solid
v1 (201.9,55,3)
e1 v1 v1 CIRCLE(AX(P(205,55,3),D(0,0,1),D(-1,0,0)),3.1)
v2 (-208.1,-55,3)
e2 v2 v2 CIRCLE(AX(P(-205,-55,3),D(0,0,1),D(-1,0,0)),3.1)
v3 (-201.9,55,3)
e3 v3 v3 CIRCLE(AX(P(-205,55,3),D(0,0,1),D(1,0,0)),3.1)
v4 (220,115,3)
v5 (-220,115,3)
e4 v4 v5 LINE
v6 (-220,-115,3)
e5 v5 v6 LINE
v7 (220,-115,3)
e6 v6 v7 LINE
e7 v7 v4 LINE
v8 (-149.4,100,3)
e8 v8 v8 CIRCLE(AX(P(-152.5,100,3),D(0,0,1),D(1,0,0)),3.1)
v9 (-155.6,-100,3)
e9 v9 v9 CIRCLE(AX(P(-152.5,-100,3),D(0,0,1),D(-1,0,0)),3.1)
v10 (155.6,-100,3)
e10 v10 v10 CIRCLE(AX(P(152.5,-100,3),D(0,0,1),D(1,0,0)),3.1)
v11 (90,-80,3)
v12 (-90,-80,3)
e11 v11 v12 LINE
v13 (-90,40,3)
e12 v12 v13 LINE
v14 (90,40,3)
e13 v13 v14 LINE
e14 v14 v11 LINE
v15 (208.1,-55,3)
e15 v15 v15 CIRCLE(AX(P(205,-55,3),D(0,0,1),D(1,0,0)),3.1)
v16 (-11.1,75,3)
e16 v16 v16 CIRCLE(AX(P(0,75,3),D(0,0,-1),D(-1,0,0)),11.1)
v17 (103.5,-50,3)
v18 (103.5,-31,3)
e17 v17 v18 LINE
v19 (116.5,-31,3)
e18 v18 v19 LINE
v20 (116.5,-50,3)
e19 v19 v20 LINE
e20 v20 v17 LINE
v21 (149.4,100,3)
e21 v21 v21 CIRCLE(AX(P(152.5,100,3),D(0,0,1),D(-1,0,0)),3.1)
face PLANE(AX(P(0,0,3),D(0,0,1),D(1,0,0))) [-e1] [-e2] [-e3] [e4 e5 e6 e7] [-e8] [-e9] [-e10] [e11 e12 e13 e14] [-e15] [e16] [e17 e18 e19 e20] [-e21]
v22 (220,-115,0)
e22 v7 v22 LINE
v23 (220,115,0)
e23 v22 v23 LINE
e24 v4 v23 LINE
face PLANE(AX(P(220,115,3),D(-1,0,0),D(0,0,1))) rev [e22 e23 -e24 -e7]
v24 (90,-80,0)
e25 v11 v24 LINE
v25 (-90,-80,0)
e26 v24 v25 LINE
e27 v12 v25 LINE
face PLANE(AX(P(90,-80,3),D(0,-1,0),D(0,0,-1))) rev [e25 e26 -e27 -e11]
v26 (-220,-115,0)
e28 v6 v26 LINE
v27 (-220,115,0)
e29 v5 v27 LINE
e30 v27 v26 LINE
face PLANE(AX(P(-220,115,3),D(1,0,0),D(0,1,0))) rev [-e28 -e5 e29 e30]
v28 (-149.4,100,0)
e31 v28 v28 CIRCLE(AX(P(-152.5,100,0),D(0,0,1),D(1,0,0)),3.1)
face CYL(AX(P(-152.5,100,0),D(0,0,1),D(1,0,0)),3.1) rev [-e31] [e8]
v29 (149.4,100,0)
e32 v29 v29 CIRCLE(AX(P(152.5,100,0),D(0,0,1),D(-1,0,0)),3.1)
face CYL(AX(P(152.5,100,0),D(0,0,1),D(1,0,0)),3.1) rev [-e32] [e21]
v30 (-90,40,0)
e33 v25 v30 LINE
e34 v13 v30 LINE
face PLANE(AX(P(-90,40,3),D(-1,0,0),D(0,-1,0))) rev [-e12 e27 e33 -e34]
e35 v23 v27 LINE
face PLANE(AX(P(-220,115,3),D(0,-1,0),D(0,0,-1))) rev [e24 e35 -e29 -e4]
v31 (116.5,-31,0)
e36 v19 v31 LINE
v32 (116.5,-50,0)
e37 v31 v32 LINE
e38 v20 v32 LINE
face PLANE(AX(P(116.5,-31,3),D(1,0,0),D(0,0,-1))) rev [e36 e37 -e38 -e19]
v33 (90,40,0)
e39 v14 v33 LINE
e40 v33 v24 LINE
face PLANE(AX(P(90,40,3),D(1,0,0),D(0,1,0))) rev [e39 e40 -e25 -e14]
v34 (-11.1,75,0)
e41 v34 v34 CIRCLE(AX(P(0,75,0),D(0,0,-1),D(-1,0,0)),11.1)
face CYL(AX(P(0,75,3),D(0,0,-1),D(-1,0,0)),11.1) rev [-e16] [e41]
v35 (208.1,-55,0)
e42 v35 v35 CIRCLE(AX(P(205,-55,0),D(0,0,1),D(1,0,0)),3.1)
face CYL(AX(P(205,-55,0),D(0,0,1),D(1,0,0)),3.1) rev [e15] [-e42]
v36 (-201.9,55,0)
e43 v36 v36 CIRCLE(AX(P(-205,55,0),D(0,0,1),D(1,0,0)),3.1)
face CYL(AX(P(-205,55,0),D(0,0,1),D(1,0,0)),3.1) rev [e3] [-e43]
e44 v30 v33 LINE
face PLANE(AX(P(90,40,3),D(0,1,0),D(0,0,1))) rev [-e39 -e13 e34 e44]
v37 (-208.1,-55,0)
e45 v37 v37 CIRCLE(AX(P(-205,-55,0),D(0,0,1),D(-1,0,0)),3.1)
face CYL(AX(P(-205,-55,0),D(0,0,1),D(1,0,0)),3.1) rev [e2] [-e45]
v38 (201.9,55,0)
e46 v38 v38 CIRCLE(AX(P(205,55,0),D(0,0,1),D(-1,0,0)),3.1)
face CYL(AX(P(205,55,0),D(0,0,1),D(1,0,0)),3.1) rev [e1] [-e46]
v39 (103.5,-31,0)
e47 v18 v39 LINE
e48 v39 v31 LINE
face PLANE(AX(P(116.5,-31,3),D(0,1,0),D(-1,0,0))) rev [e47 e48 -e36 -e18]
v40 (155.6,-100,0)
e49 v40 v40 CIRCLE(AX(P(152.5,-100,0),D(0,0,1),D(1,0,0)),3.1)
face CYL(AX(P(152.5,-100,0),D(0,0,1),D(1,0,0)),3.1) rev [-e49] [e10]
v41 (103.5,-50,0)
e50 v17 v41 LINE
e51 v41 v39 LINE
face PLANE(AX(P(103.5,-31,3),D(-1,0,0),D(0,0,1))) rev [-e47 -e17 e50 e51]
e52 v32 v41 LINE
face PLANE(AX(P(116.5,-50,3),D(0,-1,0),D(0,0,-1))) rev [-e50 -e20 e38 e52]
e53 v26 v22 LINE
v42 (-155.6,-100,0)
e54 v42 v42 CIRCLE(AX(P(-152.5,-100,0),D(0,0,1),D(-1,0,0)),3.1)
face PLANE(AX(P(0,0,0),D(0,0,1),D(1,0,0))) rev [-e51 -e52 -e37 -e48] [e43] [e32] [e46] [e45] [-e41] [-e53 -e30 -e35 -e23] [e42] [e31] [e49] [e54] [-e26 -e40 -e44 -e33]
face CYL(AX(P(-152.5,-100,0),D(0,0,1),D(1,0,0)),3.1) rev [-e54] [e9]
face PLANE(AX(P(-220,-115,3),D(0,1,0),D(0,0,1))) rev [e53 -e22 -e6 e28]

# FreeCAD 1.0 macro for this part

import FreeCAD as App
import Part
import Sketcher
Q = App.Units.Quantity

doc = App.newDocument("Part")
body = doc.addObject("PartDesign::Body", "Body")

sketch1 = doc.addObject("Sketcher::SketchObject", "Sketch")
body.addObject(sketch1)
sketch1.AttachmentSupport = (doc.XY_Plane, [""])
sketch1.MapMode = "FlatFace"
sketch1.addGeometry(Part.LineSegment(App.Vector(-220, 115, 0), App.Vector(-220, -115, 0)), False)
sketch1.addGeometry(Part.LineSegment(App.Vector(-220, -115, 0), App.Vector(220, -115, 0)), False)
sketch1.addGeometry(Part.LineSegment(App.Vector(220, -115, 0), App.Vector(220, 115, 0)), False)
sketch1.addGeometry(Part.LineSegment(App.Vector(220, 115, 0), App.Vector(-220, 115, 0)), False)
sketch1.addConstraint(Sketcher.Constraint("Coincident", 0, 2, 1, 1))
sketch1.addConstraint(Sketcher.Constraint("Coincident", 1, 2, 2, 1))
sketch1.addConstraint(Sketcher.Constraint("Coincident", 2, 2, 3, 1))
sketch1.addConstraint(Sketcher.Constraint("Coincident", 3, 2, 0, 1))
sketch1.addConstraint(Sketcher.Constraint("Vertical", 0))
sketch1.addConstraint(Sketcher.Constraint("Horizontal", 1))
sketch1.addConstraint(Sketcher.Constraint("Vertical", 2))
sketch1.addConstraint(Sketcher.Constraint("Horizontal", 3))
sketch1.addConstraint(Sketcher.Constraint("Symmetric", 0, 2, 2, 2, -1, 1))
sketch1.addConstraint(Sketcher.Constraint("DistanceX", 1, 1, 1, 2, Q("440 mm")))
sketch1.addConstraint(Sketcher.Constraint("DistanceY", 0, 2, 0, 1, Q("230 mm")))
pad1 = doc.addObject("PartDesign::Pad", "Pad")
body.addObject(pad1)
pad1.Profile = sketch1
pad1.Length = 3

sketch2 = doc.addObject("Sketcher::SketchObject", "Sketch001")
body.addObject(sketch2)
sketch2.AttachmentSupport = (doc.XY_Plane, [""])
sketch2.MapMode = "FlatFace"
sketch2.AttachmentOffset = App.Placement(App.Vector(0, 0, 3), App.Rotation())
sketch2.addGeometry(Part.Circle(App.Vector(-205, 55, 0), App.Vector(0, 0, 1), 3.1), False)
sketch2.addGeometry(Part.Circle(App.Vector(-152.5, 100, 0), App.Vector(0, 0, 1), 3.1), False)
sketch2.addGeometry(Part.Circle(App.Vector(152.5, 100, 0), App.Vector(0, 0, 1), 3.1), False)
sketch2.addGeometry(Part.Circle(App.Vector(-205, -55, 0), App.Vector(0, 0, 1), 3.1), False)
sketch2.addGeometry(Part.Circle(App.Vector(205, -55, 0), App.Vector(0, 0, 1), 3.1), False)
sketch2.addGeometry(Part.Circle(App.Vector(205, 55, 0), App.Vector(0, 0, 1), 3.1), False)
sketch2.addGeometry(Part.Circle(App.Vector(152.5, -100, 0), App.Vector(0, 0, 1), 3.1), False)
sketch2.addGeometry(Part.Circle(App.Vector(-152.5, -100, 0), App.Vector(0, 0, 1), 3.1), False)
sketch2.addConstraint(Sketcher.Constraint("Equal", 0, 1))
sketch2.addConstraint(Sketcher.Constraint("Equal", 1, 2))
sketch2.addConstraint(Sketcher.Constraint("Equal", 2, 3))
sketch2.addConstraint(Sketcher.Constraint("Equal", 3, 4))
sketch2.addConstraint(Sketcher.Constraint("Equal", 4, 5))
sketch2.addConstraint(Sketcher.Constraint("Equal", 5, 6))
sketch2.addConstraint(Sketcher.Constraint("Equal", 6, 7))
sketch2.addConstraint(Sketcher.Constraint("Symmetric", 0, 3, 4, 3, -1, 1))
sketch2.addConstraint(Sketcher.Constraint("Symmetric", 3, 3, 5, 3, -1, 1))
sketch2.addConstraint(Sketcher.Constraint("Symmetric", 1, 3, 6, 3, -1, 1))
sketch2.addConstraint(Sketcher.Constraint("Symmetric", 2, 3, 7, 3, -1, 1))
sketch2.addConstraint(Sketcher.Constraint("Symmetric", 1, 3, 2, 3, -2))
sketch2.addConstraint(Sketcher.Constraint("Symmetric", 3, 3, 4, 3, -2))
sketch2.addConstraint(Sketcher.Constraint("Diameter", 0, Q("6.2 mm")))
sketch2.addConstraint(Sketcher.Constraint("DistanceX", 0, 3, -1, 1, Q("205 mm")))
sketch2.addConstraint(Sketcher.Constraint("DistanceY", -1, 1, 0, 3, Q("55 mm")))
sketch2.addConstraint(Sketcher.Constraint("DistanceY", -1, 1, 1, 3, Q("100 mm")))
sketch2.addConstraint(Sketcher.Constraint("DistanceX", 1, 3, 2, 3, Q("305 mm")))
pocket1 = doc.addObject("PartDesign::Pocket", "Pocket")
body.addObject(pocket1)
pocket1.Profile = sketch2
pocket1.Type = "ThroughAll"

sketch3 = doc.addObject("Sketcher::SketchObject", "Sketch002")
body.addObject(sketch3)
sketch3.AttachmentSupport = (doc.XY_Plane, [""])
sketch3.MapMode = "FlatFace"
sketch3.addGeometry(Part.LineSegment(App.Vector(90, 40, 0), App.Vector(90, -80, 0)), False)
sketch3.addGeometry(Part.LineSegment(App.Vector(90, -80, 0), App.Vector(-90, -80, 0)), False)
sketch3.addGeometry(Part.LineSegment(App.Vector(-90, -80, 0), App.Vector(-90, 40, 0)), False)
sketch3.addGeometry(Part.LineSegment(App.Vector(-90, 40, 0), App.Vector(90, 40, 0)), False)
sketch3.addConstraint(Sketcher.Constraint("Coincident", 0, 2, 1, 1))
sketch3.addConstraint(Sketcher.Constraint("Coincident", 1, 2, 2, 1))
sketch3.addConstraint(Sketcher.Constraint("Coincident", 2, 2, 3, 1))
sketch3.addConstraint(Sketcher.Constraint("Coincident", 3, 2, 0, 1))
sketch3.addConstraint(Sketcher.Constraint("Vertical", 0))
sketch3.addConstraint(Sketcher.Constraint("Horizontal", 1))
sketch3.addConstraint(Sketcher.Constraint("Vertical", 2))
sketch3.addConstraint(Sketcher.Constraint("Horizontal", 3))
sketch3.addConstraint(Sketcher.Constraint("DistanceX", 1, 2, 1, 1, Q("180 mm")))
sketch3.addConstraint(Sketcher.Constraint("DistanceY", 0, 2, 0, 1, Q("120 mm")))
sketch3.addConstraint(Sketcher.Constraint("DistanceX", -1, 1, 0, 2, Q("90 mm")))
sketch3.addConstraint(Sketcher.Constraint("DistanceY", 0, 2, -1, 1, Q("80 mm")))
pocket2 = doc.addObject("PartDesign::Pocket", "Pocket001")
body.addObject(pocket2)
pocket2.Profile = sketch3
pocket2.Type = "ThroughAll"
pocket2.Reversed = True

sketch4 = doc.addObject("Sketcher::SketchObject", "Sketch003")
body.addObject(sketch4)
sketch4.AttachmentSupport = (doc.XY_Plane, [""])
sketch4.MapMode = "FlatFace"
sketch4.addGeometry(Part.Circle(App.Vector(0, 75, 0), App.Vector(0, 0, 1), 11), False)
sketch4.addConstraint(Sketcher.Constraint("PointOnObject", 0, 3, -2))
sketch4.addConstraint(Sketcher.Constraint("Diameter", 0, Q("22.2 mm")))
sketch4.addConstraint(Sketcher.Constraint("DistanceY", -1, 1, 0, 3, Q("75 mm")))
pocket3 = doc.addObject("PartDesign::Pocket", "Pocket002")
body.addObject(pocket3)
pocket3.Profile = sketch4
pocket3.Type = "ThroughAll"
pocket3.Reversed = True

sketch5 = doc.addObject("Sketcher::SketchObject", "Sketch004")
body.addObject(sketch5)
sketch5.AttachmentSupport = (doc.XY_Plane, [""])
sketch5.MapMode = "FlatFace"
sketch5.addGeometry(Part.LineSegment(App.Vector(116, -31, 0), App.Vector(116, -50, 0)), False)
sketch5.addGeometry(Part.LineSegment(App.Vector(116, -50, 0), App.Vector(104, -50, 0)), False)
sketch5.addGeometry(Part.LineSegment(App.Vector(104, -50, 0), App.Vector(104, -31, 0)), False)
sketch5.addGeometry(Part.LineSegment(App.Vector(104, -31, 0), App.Vector(116, -31, 0)), False)
sketch5.addConstraint(Sketcher.Constraint("Coincident", 0, 2, 1, 1))
sketch5.addConstraint(Sketcher.Constraint("Coincident", 1, 2, 2, 1))
sketch5.addConstraint(Sketcher.Constraint("Coincident", 2, 2, 3, 1))
sketch5.addConstraint(Sketcher.Constraint("Coincident", 3, 2, 0, 1))
sketch5.addConstraint(Sketcher.Constraint("Vertical", 0))
sketch5.addConstraint(Sketcher.Constraint("Horizontal", 1))
sketch5.addConstraint(Sketcher.Constraint("Vertical", 2))
sketch5.addConstraint(Sketcher.Constraint("Horizontal", 3))
sketch5.addConstraint(Sketcher.Constraint("DistanceX", 1, 2, 1, 1, Q("13 mm")))
sketch5.addConstraint(Sketcher.Constraint("DistanceY", 0, 2, 0, 1, Q("19 mm")))
sketch5.addConstraint(Sketcher.Constraint("DistanceY", 0, 2, -1, 1, Q("50 mm")))
sketch5.addConstraint(Sketcher.Constraint("DistanceX", -1, 1, 0, 2, Q("116.5 mm")))
pocket4 = doc.addObject("PartDesign::Pocket", "Pocket003")
body.addObject(pocket4)
pocket4.Profile = sketch5
pocket4.Type = "ThroughAll"
pocket4.Reversed = True

doc.recompute()
